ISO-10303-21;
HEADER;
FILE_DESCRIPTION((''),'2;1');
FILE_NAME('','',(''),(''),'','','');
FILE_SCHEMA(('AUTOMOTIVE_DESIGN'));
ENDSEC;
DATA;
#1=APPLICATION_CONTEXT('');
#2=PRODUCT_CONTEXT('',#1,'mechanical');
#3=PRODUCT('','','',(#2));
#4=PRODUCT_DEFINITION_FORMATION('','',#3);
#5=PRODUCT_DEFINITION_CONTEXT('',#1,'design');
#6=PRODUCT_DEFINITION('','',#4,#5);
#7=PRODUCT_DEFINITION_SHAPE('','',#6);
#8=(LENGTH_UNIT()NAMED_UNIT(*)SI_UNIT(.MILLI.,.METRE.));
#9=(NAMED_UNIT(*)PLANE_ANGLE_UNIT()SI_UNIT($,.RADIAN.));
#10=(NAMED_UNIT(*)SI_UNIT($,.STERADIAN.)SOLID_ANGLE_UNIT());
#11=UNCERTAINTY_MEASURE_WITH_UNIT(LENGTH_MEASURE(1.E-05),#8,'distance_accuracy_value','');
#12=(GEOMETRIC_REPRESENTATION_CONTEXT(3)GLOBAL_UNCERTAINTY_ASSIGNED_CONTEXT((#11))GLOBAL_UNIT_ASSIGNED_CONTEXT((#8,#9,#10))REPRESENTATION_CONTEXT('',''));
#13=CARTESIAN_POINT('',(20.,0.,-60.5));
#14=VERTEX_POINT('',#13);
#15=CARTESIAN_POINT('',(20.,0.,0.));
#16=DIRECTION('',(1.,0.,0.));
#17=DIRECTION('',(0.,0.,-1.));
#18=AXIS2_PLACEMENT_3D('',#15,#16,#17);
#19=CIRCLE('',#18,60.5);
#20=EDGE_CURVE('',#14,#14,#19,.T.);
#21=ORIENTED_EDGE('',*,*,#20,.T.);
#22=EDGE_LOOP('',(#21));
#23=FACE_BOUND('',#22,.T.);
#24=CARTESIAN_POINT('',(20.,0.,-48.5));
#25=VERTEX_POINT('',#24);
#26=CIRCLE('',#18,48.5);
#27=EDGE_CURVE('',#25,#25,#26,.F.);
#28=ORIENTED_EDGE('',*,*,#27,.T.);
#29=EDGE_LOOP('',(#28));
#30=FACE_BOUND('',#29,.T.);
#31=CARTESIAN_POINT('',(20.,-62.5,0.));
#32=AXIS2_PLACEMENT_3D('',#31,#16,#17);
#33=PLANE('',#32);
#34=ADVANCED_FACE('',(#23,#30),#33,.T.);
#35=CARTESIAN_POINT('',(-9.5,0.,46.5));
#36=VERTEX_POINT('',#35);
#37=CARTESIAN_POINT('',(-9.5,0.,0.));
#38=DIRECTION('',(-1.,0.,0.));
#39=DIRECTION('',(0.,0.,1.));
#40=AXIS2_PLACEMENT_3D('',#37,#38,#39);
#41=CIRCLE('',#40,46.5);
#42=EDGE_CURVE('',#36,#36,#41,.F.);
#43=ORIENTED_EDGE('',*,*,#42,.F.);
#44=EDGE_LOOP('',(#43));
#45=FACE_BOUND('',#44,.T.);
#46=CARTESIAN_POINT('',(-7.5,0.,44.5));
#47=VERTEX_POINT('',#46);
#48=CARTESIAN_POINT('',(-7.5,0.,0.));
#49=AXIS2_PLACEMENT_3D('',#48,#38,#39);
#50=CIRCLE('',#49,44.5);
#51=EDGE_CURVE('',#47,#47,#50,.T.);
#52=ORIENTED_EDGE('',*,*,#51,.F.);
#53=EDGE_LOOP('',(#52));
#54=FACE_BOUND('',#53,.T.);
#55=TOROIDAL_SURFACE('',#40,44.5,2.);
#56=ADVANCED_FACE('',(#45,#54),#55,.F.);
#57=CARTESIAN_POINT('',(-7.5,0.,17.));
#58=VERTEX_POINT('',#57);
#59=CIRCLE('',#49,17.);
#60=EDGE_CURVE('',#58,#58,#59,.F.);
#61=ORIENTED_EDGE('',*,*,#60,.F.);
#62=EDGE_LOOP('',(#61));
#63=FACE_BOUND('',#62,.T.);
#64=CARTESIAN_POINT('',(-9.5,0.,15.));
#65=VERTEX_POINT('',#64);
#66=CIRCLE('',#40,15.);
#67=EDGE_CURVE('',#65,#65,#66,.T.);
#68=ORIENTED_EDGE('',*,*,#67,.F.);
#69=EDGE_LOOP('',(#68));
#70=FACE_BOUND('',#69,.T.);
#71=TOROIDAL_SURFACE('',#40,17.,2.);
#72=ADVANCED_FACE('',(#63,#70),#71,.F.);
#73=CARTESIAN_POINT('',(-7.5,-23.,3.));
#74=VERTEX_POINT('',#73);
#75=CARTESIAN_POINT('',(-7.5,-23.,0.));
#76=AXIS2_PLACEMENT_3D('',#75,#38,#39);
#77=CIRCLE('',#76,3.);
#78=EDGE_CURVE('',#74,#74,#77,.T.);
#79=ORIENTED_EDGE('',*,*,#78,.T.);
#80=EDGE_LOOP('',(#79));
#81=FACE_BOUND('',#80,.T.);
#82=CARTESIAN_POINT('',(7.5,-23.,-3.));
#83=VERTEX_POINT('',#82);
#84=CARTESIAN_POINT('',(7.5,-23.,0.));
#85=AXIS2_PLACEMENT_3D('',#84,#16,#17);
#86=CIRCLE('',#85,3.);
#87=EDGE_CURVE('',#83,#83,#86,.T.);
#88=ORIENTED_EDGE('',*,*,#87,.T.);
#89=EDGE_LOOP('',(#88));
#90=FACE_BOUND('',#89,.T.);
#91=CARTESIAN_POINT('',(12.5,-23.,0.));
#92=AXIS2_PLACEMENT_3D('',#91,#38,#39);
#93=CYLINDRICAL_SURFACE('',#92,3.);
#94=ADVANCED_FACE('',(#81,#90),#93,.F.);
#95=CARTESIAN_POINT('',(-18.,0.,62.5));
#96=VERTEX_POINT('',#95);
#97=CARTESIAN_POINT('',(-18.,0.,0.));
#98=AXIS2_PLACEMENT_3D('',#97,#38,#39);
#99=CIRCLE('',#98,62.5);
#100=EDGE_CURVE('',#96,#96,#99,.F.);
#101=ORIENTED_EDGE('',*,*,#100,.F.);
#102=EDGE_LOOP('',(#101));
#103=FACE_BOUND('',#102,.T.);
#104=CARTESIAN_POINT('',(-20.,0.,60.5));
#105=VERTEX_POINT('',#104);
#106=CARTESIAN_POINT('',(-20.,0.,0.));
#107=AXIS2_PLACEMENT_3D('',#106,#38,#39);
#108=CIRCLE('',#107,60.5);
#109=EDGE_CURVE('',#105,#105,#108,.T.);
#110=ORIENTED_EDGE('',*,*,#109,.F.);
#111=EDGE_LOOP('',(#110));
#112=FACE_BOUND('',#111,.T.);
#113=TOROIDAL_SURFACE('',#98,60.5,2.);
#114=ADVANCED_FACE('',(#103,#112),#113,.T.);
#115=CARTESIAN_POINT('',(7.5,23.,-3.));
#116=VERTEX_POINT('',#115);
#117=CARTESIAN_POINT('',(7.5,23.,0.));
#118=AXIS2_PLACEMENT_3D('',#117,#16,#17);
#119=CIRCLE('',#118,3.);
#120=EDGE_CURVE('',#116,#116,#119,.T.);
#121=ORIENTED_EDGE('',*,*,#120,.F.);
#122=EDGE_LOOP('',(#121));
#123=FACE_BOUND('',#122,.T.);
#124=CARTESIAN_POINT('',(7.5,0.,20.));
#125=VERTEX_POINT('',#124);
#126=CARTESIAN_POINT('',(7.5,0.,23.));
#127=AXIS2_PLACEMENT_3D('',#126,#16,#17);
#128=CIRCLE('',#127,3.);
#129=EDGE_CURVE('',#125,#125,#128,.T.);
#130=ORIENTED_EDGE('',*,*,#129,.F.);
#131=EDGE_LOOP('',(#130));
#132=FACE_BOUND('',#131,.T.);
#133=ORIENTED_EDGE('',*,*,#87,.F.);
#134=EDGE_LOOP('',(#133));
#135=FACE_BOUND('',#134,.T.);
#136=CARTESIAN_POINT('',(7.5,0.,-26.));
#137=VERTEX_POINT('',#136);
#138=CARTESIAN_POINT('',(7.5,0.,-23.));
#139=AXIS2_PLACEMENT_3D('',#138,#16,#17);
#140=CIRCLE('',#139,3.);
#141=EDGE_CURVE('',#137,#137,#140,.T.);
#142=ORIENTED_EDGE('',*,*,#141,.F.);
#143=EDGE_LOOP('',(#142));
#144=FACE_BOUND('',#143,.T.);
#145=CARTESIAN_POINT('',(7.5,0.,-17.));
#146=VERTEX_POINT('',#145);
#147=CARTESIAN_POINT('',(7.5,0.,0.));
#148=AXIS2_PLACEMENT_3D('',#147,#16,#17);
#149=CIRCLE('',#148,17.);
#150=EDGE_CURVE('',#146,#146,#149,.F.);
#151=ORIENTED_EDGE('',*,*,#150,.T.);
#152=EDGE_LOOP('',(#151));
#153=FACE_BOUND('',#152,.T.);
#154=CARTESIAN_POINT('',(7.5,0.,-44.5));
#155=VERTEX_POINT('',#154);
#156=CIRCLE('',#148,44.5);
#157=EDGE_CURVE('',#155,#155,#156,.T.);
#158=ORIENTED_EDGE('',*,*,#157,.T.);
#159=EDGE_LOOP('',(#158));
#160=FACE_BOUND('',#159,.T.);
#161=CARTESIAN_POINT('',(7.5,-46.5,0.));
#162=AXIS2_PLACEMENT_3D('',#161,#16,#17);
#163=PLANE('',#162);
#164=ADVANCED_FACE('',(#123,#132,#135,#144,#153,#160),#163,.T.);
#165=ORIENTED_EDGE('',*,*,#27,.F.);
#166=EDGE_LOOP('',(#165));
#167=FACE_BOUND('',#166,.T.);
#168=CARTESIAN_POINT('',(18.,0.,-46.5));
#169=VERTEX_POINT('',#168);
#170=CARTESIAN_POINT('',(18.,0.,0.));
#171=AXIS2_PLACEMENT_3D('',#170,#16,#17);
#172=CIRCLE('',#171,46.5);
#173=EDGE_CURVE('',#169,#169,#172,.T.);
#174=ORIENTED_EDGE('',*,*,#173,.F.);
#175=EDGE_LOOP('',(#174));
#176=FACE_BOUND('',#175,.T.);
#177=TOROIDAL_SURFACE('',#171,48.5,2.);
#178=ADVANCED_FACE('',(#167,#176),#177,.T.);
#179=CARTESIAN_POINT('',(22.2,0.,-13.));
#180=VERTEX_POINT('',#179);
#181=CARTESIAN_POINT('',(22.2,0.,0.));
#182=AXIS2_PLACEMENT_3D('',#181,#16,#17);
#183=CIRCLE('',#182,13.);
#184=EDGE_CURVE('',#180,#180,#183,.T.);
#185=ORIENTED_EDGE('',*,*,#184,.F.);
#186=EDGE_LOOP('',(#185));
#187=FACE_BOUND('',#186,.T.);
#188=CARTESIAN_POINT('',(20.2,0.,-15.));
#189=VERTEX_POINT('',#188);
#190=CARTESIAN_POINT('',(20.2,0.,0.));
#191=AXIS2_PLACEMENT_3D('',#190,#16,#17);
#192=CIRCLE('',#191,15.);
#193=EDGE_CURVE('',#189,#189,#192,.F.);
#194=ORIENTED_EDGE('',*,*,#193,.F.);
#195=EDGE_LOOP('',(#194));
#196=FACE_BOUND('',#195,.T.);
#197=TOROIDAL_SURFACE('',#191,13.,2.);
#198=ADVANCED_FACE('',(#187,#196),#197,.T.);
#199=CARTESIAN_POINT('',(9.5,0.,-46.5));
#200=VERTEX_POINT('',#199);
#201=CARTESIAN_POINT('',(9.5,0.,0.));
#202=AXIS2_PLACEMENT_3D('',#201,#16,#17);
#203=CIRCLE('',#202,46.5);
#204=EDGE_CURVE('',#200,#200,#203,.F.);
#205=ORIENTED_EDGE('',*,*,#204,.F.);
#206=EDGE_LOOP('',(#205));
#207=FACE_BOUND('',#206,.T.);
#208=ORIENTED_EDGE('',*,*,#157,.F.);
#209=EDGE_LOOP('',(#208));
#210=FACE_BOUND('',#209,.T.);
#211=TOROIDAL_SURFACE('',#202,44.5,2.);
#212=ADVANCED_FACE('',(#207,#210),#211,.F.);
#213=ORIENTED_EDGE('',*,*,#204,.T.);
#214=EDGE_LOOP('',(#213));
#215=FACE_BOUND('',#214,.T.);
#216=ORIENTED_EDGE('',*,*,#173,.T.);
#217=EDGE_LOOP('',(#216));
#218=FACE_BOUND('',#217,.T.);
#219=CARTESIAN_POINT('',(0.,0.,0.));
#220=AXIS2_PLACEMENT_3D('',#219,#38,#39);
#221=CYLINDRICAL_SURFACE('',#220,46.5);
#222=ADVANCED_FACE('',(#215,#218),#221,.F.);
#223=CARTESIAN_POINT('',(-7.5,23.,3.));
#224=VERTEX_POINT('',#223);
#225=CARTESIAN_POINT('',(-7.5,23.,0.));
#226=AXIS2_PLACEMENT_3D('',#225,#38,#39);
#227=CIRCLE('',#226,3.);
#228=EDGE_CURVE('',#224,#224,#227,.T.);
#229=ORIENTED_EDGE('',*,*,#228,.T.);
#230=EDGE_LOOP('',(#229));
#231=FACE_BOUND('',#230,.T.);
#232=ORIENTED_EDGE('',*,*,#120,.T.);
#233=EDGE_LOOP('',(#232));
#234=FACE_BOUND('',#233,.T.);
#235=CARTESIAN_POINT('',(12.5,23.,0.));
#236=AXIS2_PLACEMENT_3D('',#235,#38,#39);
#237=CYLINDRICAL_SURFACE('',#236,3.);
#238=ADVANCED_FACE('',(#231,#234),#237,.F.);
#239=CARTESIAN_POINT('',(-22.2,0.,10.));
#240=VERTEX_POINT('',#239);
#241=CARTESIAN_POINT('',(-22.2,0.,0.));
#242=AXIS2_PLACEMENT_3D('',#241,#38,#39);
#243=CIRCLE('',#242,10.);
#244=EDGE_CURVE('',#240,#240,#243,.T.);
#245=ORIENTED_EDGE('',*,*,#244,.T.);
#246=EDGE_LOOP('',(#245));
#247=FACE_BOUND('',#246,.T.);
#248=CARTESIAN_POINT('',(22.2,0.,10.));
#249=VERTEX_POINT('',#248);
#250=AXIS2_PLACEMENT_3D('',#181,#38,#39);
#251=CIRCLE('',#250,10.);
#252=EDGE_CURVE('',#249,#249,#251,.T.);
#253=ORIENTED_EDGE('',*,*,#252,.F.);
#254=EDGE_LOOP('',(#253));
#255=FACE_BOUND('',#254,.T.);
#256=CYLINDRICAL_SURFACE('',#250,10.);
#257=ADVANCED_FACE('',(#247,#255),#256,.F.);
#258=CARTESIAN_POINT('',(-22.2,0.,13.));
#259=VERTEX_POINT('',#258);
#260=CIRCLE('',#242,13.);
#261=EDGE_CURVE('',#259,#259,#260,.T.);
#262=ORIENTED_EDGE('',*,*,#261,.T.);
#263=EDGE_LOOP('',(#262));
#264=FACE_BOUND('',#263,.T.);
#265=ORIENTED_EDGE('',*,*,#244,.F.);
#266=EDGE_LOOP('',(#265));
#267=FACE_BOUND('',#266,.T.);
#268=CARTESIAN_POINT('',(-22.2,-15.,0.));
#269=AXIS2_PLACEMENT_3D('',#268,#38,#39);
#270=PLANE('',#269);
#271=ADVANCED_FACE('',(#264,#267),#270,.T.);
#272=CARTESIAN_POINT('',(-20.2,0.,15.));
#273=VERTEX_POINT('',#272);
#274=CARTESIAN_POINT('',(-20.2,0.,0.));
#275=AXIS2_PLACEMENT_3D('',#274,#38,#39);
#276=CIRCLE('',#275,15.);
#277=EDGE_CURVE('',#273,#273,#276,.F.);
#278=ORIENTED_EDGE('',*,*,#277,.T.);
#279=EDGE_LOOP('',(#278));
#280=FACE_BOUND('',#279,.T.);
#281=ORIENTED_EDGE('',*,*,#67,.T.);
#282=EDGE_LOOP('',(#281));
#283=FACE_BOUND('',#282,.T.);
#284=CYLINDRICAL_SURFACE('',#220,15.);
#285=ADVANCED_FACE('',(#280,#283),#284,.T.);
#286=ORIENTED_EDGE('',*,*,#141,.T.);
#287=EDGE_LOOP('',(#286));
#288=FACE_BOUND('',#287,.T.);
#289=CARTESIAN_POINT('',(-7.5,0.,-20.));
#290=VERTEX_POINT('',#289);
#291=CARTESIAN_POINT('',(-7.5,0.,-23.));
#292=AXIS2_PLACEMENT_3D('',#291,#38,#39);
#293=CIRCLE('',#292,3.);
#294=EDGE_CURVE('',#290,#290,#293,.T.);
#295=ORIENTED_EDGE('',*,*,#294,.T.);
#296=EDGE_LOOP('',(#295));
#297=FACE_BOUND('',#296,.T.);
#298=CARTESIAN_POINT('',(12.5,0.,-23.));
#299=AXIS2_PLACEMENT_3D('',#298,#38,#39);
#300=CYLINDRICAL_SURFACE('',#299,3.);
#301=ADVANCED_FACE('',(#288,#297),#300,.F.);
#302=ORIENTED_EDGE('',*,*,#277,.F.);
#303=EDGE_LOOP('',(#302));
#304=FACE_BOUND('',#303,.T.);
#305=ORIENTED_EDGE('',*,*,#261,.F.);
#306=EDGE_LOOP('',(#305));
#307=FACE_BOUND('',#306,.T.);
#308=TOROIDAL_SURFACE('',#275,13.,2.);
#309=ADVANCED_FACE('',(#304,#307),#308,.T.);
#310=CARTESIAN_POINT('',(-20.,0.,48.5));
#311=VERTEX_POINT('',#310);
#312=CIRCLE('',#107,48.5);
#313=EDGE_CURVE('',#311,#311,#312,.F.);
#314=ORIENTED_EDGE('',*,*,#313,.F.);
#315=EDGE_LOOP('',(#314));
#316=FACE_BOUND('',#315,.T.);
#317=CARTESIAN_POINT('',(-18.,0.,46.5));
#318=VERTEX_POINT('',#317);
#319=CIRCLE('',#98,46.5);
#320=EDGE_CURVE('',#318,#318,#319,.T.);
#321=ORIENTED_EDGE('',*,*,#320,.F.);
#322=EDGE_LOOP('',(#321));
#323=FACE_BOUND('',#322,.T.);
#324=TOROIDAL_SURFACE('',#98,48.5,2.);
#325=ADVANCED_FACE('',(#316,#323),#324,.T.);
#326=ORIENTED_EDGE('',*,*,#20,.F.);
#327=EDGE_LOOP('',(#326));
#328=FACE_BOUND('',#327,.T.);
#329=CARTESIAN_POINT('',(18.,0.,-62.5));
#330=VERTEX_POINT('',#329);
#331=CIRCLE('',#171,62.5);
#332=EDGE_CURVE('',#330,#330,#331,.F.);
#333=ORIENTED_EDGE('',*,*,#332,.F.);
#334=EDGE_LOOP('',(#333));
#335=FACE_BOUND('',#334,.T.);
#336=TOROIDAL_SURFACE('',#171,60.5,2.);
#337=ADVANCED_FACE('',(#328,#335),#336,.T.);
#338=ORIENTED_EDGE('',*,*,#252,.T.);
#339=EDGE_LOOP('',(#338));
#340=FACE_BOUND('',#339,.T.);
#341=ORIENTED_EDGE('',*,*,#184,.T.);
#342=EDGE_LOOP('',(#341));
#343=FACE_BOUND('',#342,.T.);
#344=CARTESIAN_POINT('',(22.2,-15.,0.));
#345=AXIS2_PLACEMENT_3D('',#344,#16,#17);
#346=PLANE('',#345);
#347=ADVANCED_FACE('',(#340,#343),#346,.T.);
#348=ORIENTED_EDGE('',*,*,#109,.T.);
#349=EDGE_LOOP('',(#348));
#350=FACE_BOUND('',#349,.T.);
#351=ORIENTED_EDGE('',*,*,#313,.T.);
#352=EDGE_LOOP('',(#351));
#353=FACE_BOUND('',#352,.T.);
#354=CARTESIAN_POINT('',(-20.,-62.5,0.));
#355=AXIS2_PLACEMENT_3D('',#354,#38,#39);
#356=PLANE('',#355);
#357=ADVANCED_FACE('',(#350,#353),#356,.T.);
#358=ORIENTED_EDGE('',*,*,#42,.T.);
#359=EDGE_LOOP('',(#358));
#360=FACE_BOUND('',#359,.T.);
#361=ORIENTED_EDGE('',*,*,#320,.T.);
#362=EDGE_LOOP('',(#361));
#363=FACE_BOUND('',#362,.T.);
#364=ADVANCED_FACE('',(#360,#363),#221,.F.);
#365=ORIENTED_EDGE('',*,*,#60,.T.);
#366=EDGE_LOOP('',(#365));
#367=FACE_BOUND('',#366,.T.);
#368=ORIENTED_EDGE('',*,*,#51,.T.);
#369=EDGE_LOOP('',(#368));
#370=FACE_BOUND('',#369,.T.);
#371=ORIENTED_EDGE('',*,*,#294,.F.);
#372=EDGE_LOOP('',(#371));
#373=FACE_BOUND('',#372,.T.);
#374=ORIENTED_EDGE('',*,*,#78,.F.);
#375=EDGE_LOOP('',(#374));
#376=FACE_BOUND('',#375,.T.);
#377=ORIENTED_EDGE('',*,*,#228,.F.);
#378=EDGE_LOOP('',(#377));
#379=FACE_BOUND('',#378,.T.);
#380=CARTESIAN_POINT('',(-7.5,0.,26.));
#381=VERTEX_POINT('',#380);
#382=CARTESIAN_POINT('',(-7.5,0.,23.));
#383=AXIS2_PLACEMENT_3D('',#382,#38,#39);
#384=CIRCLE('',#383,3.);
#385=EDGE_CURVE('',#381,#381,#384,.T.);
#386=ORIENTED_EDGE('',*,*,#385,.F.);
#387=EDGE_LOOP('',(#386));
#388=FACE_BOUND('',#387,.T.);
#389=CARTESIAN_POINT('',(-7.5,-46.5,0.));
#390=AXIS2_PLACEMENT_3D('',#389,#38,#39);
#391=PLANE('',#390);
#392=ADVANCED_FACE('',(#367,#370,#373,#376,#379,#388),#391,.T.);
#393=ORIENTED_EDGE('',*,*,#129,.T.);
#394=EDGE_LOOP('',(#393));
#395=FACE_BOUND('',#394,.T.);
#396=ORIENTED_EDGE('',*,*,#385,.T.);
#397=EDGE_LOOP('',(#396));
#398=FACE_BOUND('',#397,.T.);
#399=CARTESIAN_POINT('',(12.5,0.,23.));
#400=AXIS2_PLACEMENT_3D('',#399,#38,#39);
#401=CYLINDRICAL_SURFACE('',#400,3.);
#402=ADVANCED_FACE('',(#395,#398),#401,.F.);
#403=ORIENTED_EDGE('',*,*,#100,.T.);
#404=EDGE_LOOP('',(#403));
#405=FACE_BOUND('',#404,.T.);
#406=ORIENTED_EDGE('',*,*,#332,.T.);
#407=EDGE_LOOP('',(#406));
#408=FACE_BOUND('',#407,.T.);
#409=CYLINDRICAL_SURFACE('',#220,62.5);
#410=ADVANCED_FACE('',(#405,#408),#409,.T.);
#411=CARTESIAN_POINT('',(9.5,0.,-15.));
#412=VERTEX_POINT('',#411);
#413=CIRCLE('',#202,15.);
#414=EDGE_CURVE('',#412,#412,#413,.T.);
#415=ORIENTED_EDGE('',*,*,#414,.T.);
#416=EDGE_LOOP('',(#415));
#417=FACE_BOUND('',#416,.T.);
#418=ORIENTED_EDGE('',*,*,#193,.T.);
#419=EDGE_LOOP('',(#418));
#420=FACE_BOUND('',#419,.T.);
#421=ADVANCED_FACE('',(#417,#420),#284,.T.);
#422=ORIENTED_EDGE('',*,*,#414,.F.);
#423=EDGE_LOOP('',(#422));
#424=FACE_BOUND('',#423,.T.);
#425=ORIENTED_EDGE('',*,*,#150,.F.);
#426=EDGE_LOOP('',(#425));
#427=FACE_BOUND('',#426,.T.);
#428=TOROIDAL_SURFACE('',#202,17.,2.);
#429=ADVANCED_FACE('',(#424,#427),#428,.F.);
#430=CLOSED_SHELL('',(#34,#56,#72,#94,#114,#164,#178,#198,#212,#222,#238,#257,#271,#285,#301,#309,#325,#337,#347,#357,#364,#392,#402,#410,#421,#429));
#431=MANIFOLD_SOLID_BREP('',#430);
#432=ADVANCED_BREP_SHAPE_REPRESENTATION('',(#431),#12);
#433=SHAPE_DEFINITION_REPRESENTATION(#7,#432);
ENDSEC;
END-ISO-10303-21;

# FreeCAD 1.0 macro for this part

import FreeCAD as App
import Part
import Sketcher
from FreeCAD import Vector
Q = App.Units.Quantity


def edges_at(feature, points):
    """Names of the edges that pass closest to the given points."""
    edges = feature.Shape.Edges
    near = lambda p: min(range(len(edges)), key=lambda i: edges[i].distToShape(Part.Vertex(*p))[0])
    return sorted({f"Edge{near(p) + 1}" for p in points})


def add_polygon(sketch, points):
    """Adds a closed chain of lines whose ends are joined by coincident constraints."""
    first, n = sketch.GeometryCount, len(points)
    for a, b in zip(points, points[1:] + points[:1]):
        sketch.addGeometry(Part.LineSegment(App.Vector(*a, 0), App.Vector(*b, 0)), False)
    for i in range(n):
        sketch.addConstraint(Sketcher.Constraint("Coincident", first + i, 2, first + (i + 1) % n, 1))

doc = App.newDocument("Part")
params = doc.addObject("Spreadsheet::Sheet", "Params")
for row, (alias, value) in enumerate([
    ("sketch1_width", "40 mm"),
    ("sketch1_height", "16 mm"),
    ("sketch1_height2", "9 mm"),
    ("sketch1_width2", "12.5 mm"),
    ("sketch1_width3", "14.7 mm"),
    ("revolution_angle", "360 deg"),
    ("fillet_radius", "2 mm"),
    ("sketch2_diameter", "20 mm"),
    ("sketch3_diameter", "6 mm"),
    ("pocket2_length", "20 mm"),
], start=1):
    params.set(f"A{row}", alias)
    params.set(f"B{row}", "=" + value)
    params.setAlias(f"B{row}", alias)

body = doc.addObject("PartDesign::Body", "Body")

sketch1 = body.newObject("Sketcher::SketchObject", "Sketch")
sketch1.AttachmentSupport = (doc.getObject("XY_Plane"), [""])
sketch1.MapMode = "FlatFace"
add_polygon(sketch1, [(-20, -62.5), (20, -62.5), (20, -46.5), (7.5, -46.5), (7.5, -15), (22.2, -15), (22.2, -6), (-22.2, -6), (-22.2, -15), (-7.5, -15), (-7.5, -46.5), (-20, -46.5)])
sketch1.addConstraint([
    Sketcher.Constraint("Horizontal", 0),
    Sketcher.Constraint("Vertical", 1),
    Sketcher.Constraint("Horizontal", 2),
    Sketcher.Constraint("Vertical", 3),
    Sketcher.Constraint("Horizontal", 4),
    Sketcher.Constraint("Vertical", 5),
    Sketcher.Constraint("Horizontal", 6),
    Sketcher.Constraint("Vertical", 7),
    Sketcher.Constraint("Horizontal", 8),
    Sketcher.Constraint("Vertical", 9),
    Sketcher.Constraint("Horizontal", 10),
    Sketcher.Constraint("Vertical", 11),
    Sketcher.Constraint("Symmetric", 4, 2, 7, 2, -2),
    Sketcher.Constraint("Symmetric", 2, 2, 9, 2, -2),
    Sketcher.Constraint("Equal", 2, 10),
    Sketcher.Constraint("DistanceX", 0, 1, 0, 2, Q("40 mm")),
    Sketcher.Constraint("DistanceY", 1, 1, 1, 2, Q("16 mm")),
    Sketcher.Constraint("DistanceY", 5, 1, 5, 2, Q("9 mm")),
    Sketcher.Constraint("DistanceX", 2, 2, 2, 1, Q("12.5 mm")),
    Sketcher.Constraint("DistanceX", 4, 1, 4, 2, Q("14.7 mm")),
    Sketcher.Constraint("DistanceY", 3, 1, 3, 2, Q("31.5 mm")),
    Sketcher.Constraint("DistanceY", 3, 2, -1, 1, Q("15 mm")),
])
sketch1.setExpression("Constraints[27]", "Params.sketch1_width")
sketch1.setExpression("Constraints[28]", "Params.sketch1_height")
sketch1.setExpression("Constraints[29]", "Params.sketch1_height2")
sketch1.setExpression("Constraints[30]", "Params.sketch1_width2")
sketch1.setExpression("Constraints[31]", "Params.sketch1_width3")
revolution = body.newObject("PartDesign::Revolution", "Revolution")
revolution.Profile = sketch1
revolution.ReferenceAxis = (sketch1, ["H_Axis"])
revolution.setExpression("Angle", "Params.revolution_angle")
doc.recompute()

fillet = body.newObject("PartDesign::Fillet", "Fillet")
fillet.Base = (revolution, edges_at(revolution, [
    (-7.5, 0, -15),
    (-22.2, 0, -15),
    (22.2, 0, -15),
    (7.5, 0, -15),
    (7.5, 0, -46.5),
    (20, 0, -46.5),
    (20, 0, -62.5),
    (-20, 0, -62.5),
    (-20, 0, -46.5),
    (-7.5, 0, -46.5),
]))
fillet.setExpression("Radius", "Params.fillet_radius")

sketch2 = body.newObject("Sketcher::SketchObject", "Sketch001")
sketch2.AttachmentSupport = (doc.getObject("YZ_Plane"), [""])
sketch2.MapMode = "FlatFace"
sketch2.AttachmentOffset = App.Placement(Vector(0, 0, -22.2), App.Rotation())
sketch2.addGeometry(Part.Circle(Vector(0, 0, 0), Vector(0, 0, 1), 10), False)
sketch2.addConstraint([
    Sketcher.Constraint("Coincident", 0, 3, -1, 1),
    Sketcher.Constraint("Diameter", 0, Q("20 mm")),
])
sketch2.setExpression("Constraints[1]", "Params.sketch2_diameter")
pocket1 = body.newObject("PartDesign::Pocket", "Pocket")
pocket1.Profile = sketch2
pocket1.Type = "ThroughAll"
pocket1.Reversed = True

sketch3 = body.newObject("Sketcher::SketchObject", "Sketch002")
sketch3.AttachmentSupport = (doc.getObject("YZ_Plane"), [""])
sketch3.MapMode = "FlatFace"
sketch3.AttachmentOffset = App.Placement(Vector(0, 0, -7.5), App.Rotation())
sketch3.addGeometry([
    Part.Circle(Vector(23, 0, 0), Vector(0, 0, 1), 3),
    Part.Circle(Vector(0, 23, 0), Vector(0, 0, 1), 3),
    Part.Circle(Vector(-23, 0, 0), Vector(0, 0, 1), 3),
    Part.Circle(Vector(0, -23, 0), Vector(0, 0, 1), 3),
], False)
sketch3.addConstraint([
    Sketcher.Constraint("Equal", 0, 1),
    Sketcher.Constraint("Equal", 1, 2),
    Sketcher.Constraint("Equal", 2, 3),
    Sketcher.Constraint("Symmetric", 0, 3, 2, 3, -1, 1),
    Sketcher.Constraint("Symmetric", 1, 3, 3, 3, -1, 1),
    Sketcher.Constraint("PointOnObject", 0, 3, -1),
    Sketcher.Constraint("PointOnObject", 1, 3, -2),
    Sketcher.Constraint("Diameter", 0, Q("6 mm")),
    Sketcher.Constraint("DistanceX", -1, 1, 0, 3, Q("23 mm")),
    Sketcher.Constraint("DistanceY", -1, 1, 1, 3, Q("23 mm")),
])
sketch3.setExpression("Constraints[7]", "Params.sketch3_diameter")
pocket2 = body.newObject("PartDesign::Pocket", "Pocket001")
pocket2.Profile = sketch3
pocket2.setExpression("Length", "Params.pocket2_length")
pocket2.Reversed = True

doc.recompute()
